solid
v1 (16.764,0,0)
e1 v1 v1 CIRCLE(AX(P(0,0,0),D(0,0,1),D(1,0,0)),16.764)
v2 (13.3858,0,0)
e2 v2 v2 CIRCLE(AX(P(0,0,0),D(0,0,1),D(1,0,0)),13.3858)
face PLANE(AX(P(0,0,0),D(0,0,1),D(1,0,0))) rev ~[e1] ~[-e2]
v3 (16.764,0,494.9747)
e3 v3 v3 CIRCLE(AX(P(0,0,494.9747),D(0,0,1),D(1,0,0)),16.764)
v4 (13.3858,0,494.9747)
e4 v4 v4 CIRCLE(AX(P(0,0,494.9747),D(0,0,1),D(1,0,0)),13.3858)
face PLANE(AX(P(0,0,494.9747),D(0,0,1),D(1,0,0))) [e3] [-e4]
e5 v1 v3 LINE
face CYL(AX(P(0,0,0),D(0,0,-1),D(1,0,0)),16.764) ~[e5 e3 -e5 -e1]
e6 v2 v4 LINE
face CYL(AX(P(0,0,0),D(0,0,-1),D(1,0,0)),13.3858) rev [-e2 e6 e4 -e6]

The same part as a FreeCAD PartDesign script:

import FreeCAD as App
import Part
import Sketcher
Q = App.Units.Quantity

doc = App.newDocument("Part")
body = doc.addObject("PartDesign::Body", "Body")

# Sketch on XY plane
sketch1 = body.newObject("Sketcher::SketchObject", "Sketch")
sketch1.AttachmentSupport = (doc.getObject("XY_Plane"), [""])
sketch1.MapMode = "FlatFace"
sketch1.addGeometry([
    Part.Circle(App.Vector(0, 0, 0), App.Vector(0, 0, 1), 16.764),
    Part.Circle(App.Vector(0, 0, 0), App.Vector(0, 0, 1), 13.3858),
], False)
sketch1.addConstraint([
    Sketcher.Constraint("Coincident", 0, 3, -1, 1),
    Sketcher.Constraint("Coincident", 1, 3, -1, 1),
    Sketcher.Constraint("Diameter", 0, Q("1.32 in")),
    Sketcher.Constraint("Diameter", 1, Q("1.054 in")),
])
pad1 = body.newObject("PartDesign::Pad", "Pad")
pad1.Profile = sketch1
pad1.Length = Q("19.4871929 in")

doc.recompute()
